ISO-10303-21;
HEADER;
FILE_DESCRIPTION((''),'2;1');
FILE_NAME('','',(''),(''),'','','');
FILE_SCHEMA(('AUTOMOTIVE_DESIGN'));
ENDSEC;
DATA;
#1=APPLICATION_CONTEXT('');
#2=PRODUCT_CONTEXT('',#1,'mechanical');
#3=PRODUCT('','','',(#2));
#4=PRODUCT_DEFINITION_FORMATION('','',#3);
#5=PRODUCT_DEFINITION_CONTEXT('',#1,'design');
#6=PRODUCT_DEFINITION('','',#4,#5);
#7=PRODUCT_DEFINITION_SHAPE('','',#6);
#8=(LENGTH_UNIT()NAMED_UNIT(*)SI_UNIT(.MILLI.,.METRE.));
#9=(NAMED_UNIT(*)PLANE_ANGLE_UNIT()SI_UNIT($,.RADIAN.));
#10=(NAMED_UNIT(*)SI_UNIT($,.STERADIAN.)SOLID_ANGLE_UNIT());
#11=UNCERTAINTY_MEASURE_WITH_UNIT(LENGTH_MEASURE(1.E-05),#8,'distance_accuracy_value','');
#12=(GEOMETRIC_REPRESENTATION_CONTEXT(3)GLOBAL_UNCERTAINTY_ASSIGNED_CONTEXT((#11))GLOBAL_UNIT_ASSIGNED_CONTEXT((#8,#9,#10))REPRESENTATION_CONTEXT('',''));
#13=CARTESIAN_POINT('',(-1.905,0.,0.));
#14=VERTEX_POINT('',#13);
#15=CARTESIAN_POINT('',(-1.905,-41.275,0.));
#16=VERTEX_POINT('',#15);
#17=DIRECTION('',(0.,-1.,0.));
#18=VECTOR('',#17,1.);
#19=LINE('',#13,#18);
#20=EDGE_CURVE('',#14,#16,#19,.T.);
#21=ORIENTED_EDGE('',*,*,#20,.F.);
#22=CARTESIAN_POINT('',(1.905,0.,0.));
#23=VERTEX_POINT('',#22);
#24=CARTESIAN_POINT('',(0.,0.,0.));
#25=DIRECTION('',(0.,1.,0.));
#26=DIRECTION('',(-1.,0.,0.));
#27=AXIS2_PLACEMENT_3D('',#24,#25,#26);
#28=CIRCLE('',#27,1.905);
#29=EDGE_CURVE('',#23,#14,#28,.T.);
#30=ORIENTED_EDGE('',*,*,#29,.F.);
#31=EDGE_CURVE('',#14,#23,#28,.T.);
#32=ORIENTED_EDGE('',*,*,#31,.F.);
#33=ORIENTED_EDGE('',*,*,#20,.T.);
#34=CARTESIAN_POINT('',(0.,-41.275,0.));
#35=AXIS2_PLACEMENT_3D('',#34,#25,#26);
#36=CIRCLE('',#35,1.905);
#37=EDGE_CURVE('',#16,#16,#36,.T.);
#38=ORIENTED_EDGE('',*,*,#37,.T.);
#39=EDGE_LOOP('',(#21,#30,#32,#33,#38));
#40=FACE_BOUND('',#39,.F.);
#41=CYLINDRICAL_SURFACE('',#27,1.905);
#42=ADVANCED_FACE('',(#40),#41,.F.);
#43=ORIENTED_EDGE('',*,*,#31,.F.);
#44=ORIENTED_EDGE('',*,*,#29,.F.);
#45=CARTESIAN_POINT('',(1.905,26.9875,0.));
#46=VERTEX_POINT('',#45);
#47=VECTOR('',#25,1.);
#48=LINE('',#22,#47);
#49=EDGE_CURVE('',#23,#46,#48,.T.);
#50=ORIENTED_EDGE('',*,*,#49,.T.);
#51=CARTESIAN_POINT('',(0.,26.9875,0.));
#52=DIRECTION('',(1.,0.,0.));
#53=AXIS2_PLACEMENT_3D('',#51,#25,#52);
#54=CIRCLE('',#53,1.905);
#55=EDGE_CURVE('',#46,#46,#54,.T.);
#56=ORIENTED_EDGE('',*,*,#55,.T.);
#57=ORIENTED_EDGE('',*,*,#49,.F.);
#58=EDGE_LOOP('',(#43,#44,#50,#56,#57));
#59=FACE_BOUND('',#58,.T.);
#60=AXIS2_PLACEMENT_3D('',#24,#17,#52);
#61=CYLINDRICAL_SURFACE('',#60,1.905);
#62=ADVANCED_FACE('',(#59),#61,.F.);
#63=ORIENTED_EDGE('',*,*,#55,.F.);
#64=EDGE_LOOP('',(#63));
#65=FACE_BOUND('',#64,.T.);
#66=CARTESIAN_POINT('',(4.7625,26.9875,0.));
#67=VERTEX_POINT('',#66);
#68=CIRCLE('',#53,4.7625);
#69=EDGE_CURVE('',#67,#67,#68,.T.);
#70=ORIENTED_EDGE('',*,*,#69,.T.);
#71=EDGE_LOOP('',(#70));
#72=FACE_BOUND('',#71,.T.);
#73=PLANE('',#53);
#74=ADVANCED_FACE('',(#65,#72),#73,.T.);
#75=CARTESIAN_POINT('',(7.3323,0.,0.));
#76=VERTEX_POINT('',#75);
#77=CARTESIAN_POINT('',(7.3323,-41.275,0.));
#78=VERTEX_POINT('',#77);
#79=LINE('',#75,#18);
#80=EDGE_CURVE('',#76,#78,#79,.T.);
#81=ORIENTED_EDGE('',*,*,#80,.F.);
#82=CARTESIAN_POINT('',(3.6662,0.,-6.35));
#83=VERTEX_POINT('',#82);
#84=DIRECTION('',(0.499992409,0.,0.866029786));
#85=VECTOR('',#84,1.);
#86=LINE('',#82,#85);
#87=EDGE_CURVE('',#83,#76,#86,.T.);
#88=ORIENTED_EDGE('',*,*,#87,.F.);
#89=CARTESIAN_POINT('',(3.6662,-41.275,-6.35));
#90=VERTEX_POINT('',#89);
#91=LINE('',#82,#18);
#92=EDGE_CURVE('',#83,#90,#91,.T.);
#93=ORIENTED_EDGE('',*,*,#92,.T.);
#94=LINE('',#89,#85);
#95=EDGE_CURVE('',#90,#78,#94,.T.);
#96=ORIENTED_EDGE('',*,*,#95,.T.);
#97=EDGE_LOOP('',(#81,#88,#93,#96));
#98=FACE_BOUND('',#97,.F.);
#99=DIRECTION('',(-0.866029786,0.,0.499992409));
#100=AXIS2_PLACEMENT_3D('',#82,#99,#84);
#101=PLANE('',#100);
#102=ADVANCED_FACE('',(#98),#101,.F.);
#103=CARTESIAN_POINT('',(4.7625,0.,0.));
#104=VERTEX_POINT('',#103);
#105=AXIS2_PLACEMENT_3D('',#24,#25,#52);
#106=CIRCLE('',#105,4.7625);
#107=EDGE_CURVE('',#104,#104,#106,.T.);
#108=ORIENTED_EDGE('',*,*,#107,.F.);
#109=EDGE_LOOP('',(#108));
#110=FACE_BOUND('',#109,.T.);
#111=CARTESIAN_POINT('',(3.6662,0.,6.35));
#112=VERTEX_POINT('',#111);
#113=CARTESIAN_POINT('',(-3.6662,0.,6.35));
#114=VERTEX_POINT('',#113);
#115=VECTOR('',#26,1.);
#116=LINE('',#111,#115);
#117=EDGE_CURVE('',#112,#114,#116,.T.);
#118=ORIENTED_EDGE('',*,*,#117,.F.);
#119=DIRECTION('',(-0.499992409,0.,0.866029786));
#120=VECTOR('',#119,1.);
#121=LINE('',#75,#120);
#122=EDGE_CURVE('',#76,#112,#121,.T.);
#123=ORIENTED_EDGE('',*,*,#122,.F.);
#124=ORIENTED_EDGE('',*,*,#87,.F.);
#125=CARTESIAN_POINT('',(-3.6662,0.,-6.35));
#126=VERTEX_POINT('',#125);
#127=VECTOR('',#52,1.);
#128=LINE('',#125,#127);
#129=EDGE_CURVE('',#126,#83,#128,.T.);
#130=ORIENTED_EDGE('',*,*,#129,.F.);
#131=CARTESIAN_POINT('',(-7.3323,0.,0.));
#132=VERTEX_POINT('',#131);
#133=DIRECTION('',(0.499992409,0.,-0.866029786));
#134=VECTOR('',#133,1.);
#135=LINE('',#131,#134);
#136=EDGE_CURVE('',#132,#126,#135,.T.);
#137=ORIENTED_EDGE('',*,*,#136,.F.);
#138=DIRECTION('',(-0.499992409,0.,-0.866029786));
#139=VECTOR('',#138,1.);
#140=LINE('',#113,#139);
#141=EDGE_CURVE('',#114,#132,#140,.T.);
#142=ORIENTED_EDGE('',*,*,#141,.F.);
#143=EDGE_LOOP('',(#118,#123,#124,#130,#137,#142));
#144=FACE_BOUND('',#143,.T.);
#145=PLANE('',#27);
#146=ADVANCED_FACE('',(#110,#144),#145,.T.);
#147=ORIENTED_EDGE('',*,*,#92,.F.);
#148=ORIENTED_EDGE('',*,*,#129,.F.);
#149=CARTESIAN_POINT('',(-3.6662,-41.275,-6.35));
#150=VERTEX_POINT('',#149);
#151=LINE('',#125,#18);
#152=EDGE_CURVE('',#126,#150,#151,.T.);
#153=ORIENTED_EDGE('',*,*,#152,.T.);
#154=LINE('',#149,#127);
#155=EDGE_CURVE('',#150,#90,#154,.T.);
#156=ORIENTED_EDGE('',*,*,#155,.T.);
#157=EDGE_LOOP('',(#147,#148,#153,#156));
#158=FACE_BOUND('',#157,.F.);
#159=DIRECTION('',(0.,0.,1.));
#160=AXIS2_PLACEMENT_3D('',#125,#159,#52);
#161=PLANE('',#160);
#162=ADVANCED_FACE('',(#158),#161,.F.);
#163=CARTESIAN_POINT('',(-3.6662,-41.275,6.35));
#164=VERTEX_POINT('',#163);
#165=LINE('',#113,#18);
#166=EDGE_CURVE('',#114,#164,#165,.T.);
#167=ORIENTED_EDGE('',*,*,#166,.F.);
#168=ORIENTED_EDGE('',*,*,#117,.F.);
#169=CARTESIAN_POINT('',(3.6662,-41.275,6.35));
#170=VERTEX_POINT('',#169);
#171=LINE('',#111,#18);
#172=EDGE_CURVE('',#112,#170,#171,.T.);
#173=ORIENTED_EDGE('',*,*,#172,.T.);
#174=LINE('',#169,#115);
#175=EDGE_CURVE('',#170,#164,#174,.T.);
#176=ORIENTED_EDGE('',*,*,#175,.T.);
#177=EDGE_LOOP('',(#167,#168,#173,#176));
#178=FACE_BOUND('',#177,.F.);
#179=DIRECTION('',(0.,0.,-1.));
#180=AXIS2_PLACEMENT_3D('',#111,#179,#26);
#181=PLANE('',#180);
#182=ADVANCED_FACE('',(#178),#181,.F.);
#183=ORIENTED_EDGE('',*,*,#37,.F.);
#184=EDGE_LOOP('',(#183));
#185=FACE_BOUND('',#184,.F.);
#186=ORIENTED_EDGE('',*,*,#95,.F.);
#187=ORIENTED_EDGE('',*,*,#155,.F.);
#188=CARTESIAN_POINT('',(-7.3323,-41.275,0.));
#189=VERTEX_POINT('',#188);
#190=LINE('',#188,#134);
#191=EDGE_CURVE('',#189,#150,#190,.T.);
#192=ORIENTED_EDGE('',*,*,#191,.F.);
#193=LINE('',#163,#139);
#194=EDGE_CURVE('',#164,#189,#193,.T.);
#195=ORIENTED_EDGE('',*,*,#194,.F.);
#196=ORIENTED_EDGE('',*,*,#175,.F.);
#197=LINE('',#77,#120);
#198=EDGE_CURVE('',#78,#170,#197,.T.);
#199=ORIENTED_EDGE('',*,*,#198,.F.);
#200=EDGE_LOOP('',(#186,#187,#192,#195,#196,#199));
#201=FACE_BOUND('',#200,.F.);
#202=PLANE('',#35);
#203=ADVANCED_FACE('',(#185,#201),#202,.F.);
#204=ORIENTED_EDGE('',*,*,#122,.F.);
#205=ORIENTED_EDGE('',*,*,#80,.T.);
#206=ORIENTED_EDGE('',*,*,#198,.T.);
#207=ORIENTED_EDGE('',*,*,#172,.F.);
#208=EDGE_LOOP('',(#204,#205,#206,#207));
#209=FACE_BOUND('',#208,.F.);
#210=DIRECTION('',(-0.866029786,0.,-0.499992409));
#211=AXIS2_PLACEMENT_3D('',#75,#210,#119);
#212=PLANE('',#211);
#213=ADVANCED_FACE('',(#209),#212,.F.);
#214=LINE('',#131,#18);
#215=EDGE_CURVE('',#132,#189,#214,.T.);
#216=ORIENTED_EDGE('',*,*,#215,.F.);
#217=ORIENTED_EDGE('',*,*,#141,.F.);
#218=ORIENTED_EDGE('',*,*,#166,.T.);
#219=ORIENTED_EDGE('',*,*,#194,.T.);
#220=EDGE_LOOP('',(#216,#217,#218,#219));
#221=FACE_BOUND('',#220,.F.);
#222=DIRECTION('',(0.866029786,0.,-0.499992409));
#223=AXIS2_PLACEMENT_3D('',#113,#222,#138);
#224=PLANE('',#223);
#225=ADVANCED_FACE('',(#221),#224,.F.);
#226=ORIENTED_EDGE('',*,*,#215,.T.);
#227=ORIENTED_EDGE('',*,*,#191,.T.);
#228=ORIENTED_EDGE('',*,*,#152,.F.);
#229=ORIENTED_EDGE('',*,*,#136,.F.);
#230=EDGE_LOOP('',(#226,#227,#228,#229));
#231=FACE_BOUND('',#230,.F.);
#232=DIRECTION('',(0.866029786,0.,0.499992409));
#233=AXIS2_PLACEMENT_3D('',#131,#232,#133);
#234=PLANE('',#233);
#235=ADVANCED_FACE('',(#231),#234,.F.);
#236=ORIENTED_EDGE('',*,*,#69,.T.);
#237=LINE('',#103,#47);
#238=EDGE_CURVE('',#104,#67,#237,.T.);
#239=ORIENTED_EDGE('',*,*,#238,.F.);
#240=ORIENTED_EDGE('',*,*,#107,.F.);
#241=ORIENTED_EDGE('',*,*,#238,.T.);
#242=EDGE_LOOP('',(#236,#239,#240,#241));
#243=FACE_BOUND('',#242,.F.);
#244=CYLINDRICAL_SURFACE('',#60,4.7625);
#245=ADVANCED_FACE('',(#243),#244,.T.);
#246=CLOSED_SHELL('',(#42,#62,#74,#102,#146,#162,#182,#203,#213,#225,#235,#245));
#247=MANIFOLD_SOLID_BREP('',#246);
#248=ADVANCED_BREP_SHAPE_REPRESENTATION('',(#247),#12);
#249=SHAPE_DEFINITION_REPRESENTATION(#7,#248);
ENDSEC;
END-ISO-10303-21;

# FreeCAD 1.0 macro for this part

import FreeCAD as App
import Part
import Sketcher
from FreeCAD import Vector
Q = App.Units.Quantity


def add_polygon(sketch, points):
    """Adds a closed chain of lines whose ends are joined by coincident constraints."""
    first, n = sketch.GeometryCount, len(points)
    for a, b in zip(points, points[1:] + points[:1]):
        sketch.addGeometry(Part.LineSegment(App.Vector(*a, 0), App.Vector(*b, 0)), False)
    for i in range(n):
        sketch.addConstraint(Sketcher.Constraint("Coincident", first + i, 2, first + (i + 1) % n, 1))

doc = App.newDocument("Part")
body = doc.addObject("PartDesign::Body", "Body")

sketch1 = body.newObject("Sketcher::SketchObject", "Sketch")
sketch1.AttachmentSupport = (doc.getObject("XZ_Plane"), [""])
sketch1.MapMode = "FlatFace"
add_polygon(sketch1, [(3.6662, -6.35), (-3.6662, -6.35), (-7.3323, 0), (-3.6662, 6.35), (3.6662, 6.35), (7.3323, 0)])
sketch1.addGeometry(Part.Circle(Vector(0, 0, 0), Vector(0, 0, 1), 1.905), False)
sketch1.addConstraint([
    Sketcher.Constraint("Horizontal", 0),
    Sketcher.Constraint("Horizontal", 3),
    Sketcher.Constraint("Coincident", 6, 3, -1, 1),
    Sketcher.Constraint("Symmetric", 0, 2, 3, 2, -1, 1),
    Sketcher.Constraint("Symmetric", 1, 2, 4, 2, -1, 1),
    Sketcher.Constraint("PointOnObject", 1, 2, -1),
    Sketcher.Constraint("Parallel", 2, 5),
    Sketcher.Constraint("Vertical", 0, 2, 2, 2),
    Sketcher.Constraint("Diameter", 6, Q("0.15 in")),
    Sketcher.Constraint("DistanceY", 0, 2, 2, 2, Q("0.5 in")),
    Sketcher.Constraint("Angle", 1, Q("119.9995 deg")),
    Sketcher.Constraint("DistanceX", 1, 2, 3, 2, Q("0.433 in")),
])
pad1 = body.newObject("PartDesign::Pad", "Pad")
pad1.Profile = sketch1
pad1.Length = Q("1.625 in")

sketch2 = body.newObject("Sketcher::SketchObject", "Sketch001")
sketch2.AttachmentSupport = (doc.getObject("XZ_Plane"), [""])
sketch2.MapMode = "FlatFace"
sketch2.addGeometry([
    Part.Circle(Vector(0, 0, 0), Vector(0, 0, 1), 4.7625),
    Part.Circle(Vector(0, 0, 0), Vector(0, 0, 1), 1.905),
], False)
sketch2.addConstraint([
    Sketcher.Constraint("Coincident", 0, 3, -1, 1),
    Sketcher.Constraint("Coincident", 1, 3, -1, 1),
    Sketcher.Constraint("Diameter", 0, Q("0.375 in")),
    Sketcher.Constraint("Diameter", 1, Q("0.15 in")),
])
pad2 = body.newObject("PartDesign::Pad", "Pad001")
pad2.Profile = sketch2
pad2.Length = Q("1.0625 in")
pad2.Reversed = True

doc.recompute()
